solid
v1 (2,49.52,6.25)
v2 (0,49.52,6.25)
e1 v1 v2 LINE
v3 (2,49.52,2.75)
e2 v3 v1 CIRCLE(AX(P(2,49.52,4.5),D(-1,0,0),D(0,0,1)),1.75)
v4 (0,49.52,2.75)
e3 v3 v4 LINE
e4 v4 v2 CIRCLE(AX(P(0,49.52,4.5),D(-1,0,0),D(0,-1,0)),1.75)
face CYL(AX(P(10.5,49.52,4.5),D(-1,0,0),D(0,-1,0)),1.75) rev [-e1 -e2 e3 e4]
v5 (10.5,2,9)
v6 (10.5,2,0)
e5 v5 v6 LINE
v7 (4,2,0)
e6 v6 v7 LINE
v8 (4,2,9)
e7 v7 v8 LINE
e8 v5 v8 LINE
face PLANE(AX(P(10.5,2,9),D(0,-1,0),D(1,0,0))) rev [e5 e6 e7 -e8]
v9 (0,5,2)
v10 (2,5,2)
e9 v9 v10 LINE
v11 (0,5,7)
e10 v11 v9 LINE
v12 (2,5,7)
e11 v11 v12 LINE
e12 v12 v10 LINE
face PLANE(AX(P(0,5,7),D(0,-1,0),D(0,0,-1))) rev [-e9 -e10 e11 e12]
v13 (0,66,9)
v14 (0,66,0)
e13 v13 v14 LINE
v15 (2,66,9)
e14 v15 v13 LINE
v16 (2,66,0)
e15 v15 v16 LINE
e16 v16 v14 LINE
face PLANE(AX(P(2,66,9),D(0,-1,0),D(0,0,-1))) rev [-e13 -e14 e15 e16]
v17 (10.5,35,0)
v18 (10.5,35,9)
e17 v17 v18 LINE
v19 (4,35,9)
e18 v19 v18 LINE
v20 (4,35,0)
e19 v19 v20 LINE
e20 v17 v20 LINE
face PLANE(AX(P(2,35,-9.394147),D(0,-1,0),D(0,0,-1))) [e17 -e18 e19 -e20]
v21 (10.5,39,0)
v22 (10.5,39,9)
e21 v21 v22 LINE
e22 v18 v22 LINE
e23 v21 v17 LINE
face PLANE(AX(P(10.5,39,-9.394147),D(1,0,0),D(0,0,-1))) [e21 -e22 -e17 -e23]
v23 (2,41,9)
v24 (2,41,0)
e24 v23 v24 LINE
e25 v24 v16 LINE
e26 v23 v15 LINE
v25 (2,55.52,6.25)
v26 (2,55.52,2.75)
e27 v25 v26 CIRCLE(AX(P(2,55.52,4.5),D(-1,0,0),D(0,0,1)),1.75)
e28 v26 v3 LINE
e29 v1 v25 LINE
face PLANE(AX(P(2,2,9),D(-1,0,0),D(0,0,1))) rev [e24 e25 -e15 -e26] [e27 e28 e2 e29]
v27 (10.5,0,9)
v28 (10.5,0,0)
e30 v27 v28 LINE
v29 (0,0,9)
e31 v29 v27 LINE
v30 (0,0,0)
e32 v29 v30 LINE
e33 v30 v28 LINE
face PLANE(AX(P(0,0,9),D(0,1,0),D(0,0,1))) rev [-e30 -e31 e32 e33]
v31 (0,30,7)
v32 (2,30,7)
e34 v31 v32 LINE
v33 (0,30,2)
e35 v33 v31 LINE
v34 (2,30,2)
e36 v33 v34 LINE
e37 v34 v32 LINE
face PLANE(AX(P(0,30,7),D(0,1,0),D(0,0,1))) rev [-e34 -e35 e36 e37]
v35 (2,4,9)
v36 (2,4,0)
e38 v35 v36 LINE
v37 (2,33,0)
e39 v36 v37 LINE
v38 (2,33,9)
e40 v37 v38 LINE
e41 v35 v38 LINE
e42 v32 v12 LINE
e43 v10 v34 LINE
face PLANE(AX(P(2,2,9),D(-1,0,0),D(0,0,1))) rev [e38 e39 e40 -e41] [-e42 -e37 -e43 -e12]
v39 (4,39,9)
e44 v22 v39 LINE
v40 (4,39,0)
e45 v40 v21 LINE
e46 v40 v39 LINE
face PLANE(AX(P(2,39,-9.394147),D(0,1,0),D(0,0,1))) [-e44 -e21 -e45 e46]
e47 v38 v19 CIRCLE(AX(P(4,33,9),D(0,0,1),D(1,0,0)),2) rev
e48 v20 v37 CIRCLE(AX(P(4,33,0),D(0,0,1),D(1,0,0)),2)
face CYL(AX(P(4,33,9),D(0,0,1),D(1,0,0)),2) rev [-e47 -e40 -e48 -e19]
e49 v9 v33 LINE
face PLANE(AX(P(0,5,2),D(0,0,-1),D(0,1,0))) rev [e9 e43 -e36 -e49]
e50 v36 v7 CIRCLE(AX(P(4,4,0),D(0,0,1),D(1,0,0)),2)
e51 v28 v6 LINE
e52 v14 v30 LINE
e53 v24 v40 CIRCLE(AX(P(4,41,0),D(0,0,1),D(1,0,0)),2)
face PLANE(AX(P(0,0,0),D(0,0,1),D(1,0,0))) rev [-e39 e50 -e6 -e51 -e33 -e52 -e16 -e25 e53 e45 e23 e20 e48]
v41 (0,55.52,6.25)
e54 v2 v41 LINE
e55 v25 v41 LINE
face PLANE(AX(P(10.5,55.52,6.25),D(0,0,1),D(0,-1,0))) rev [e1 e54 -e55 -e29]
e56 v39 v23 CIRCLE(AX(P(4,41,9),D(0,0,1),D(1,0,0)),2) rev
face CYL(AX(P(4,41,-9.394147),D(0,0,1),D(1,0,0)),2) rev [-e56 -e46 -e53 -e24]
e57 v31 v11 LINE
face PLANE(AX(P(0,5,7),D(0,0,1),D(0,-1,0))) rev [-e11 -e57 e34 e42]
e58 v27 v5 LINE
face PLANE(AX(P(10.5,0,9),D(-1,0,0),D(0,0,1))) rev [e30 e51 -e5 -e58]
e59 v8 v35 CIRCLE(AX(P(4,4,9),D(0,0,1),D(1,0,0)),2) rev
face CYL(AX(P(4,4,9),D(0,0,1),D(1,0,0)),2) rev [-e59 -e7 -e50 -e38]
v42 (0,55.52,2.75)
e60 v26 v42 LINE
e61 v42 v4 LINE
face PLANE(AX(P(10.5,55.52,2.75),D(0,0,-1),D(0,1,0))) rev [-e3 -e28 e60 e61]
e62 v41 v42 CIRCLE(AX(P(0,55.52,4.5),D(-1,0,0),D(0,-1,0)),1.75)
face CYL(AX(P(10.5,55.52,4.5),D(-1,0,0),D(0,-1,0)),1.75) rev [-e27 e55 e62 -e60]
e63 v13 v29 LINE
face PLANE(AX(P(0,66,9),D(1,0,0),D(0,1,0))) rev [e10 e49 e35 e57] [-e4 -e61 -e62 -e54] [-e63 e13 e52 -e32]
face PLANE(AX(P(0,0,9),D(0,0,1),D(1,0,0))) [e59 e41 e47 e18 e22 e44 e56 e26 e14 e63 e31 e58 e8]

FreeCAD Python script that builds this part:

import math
import FreeCAD as App
import Part
import Sketcher

V = App.Vector
Q = App.Units.Quantity


def edges_at(feature, points):
    """Names of the edges that pass closest to the given points."""
    edges = feature.Shape.Edges
    near = lambda p: min(range(len(edges)), key=lambda i: edges[i].distToShape(Part.Vertex(*p))[0])
    return sorted({f"Edge{near(p) + 1}" for p in points})

doc = App.newDocument("Part")
body = doc.addObject("PartDesign::Body", "Body")

sketch1 = body.newObject("Sketcher::SketchObject", "Sketch")
sketch1.AttachmentSupport = (doc.getObject("XY_Plane"), [""])
sketch1.MapMode = "FlatFace"
sketch1.addGeometry([
    Part.LineSegment(V(0, 0, 0), V(10.5, 0, 0)),
    Part.LineSegment(V(10.5, 0, 0), V(10.5, 2, 0)),
    Part.LineSegment(V(10.5, 2, 0), V(2, 2, 0)),
    Part.LineSegment(V(2, 2, 0), V(2, 66, 0)),
    Part.LineSegment(V(2, 66, 0), V(0, 66, 0)),
    Part.LineSegment(V(0, 66, 0), V(0, 0, 0)),
], False)
sketch1.addConstraint([
    Sketcher.Constraint("Coincident", 0, 2, 1, 1),
    Sketcher.Constraint("Coincident", 1, 2, 2, 1),
    Sketcher.Constraint("Coincident", 2, 2, 3, 1),
    Sketcher.Constraint("Coincident", 3, 2, 4, 1),
    Sketcher.Constraint("Coincident", 4, 2, 5, 1),
    Sketcher.Constraint("Coincident", 5, 2, 0, 1),
    Sketcher.Constraint("Horizontal", 0),
    Sketcher.Constraint("Vertical", 1),
    Sketcher.Constraint("Horizontal", 2),
    Sketcher.Constraint("Vertical", 3),
    Sketcher.Constraint("Horizontal", 4),
    Sketcher.Constraint("Vertical", 5),
    Sketcher.Constraint("Coincident", 5, 2, -1, 1),
    Sketcher.Constraint("Equal", 4, 1),
    Sketcher.Constraint("DistanceX", 4, 2, 4, 1, Q("2 mm")),
    Sketcher.Constraint("DistanceY", 3, 1, 3, 2, Q("64 mm")),
    Sketcher.Constraint("DistanceX", 0, 1, 0, 2, Q("10.5 mm")),
])
pad1 = body.newObject("PartDesign::Pad", "Pad")
pad1.Profile = sketch1
pad1.Length = 9

sketch2 = body.newObject("Sketcher::SketchObject", "Sketch001")
sketch2.AttachmentSupport = (doc.getObject("YZ_Plane"), [""])
sketch2.MapMode = "FlatFace"
sketch2.addGeometry([
    Part.LineSegment(V(49.5, 6.2, 0), V(55.5, 6.2, 0)),
    Part.ArcOfCircle(Part.Circle(V(55.5, 4.5, 0), V(0, 0, 1), 1.8), math.radians(-90), math.radians(90)),
    Part.LineSegment(V(55.5, 2.8, 0), V(49.5, 2.8, 0)),
    Part.ArcOfCircle(Part.Circle(V(49.5, 4.5, 0), V(0, 0, 1), 1.8), math.radians(90), math.radians(270)),
], False)
sketch2.addConstraint([
    Sketcher.Constraint("Tangent", 0, 2, 1, 2),
    Sketcher.Constraint("Tangent", 1, 1, 2, 1),
    Sketcher.Constraint("Tangent", 2, 2, 3, 2),
    Sketcher.Constraint("Tangent", 3, 1, 0, 1),
    Sketcher.Constraint("Horizontal", 0),
    Sketcher.Constraint("Horizontal", 2),
    Sketcher.Constraint("DistanceX", 0, 1, 0, 2, Q("6 mm")),
    Sketcher.Constraint("Radius", 1, Q("1.75 mm")),
    Sketcher.Constraint("DistanceY", -1, 1, 1, 3, Q("4.5 mm")),
    Sketcher.Constraint("DistanceX", -1, 1, 1, 3, Q("55.52 mm")),
])
pocket1 = body.newObject("PartDesign::Pocket", "Pocket")
pocket1.Profile = sketch2
pocket1.Type = "ThroughAll"
pocket1.Reversed = True

sketch3 = body.newObject("Sketcher::SketchObject", "Sketch002")
sketch3.AttachmentSupport = (doc.getObject("YZ_Plane"), [""])
sketch3.MapMode = "FlatFace"
sketch3.AttachmentOffset = App.Placement(V(0, 0, 2), App.Rotation())
sketch3.addGeometry([
    Part.LineSegment(V(30, 7, 0), V(5, 7, 0)),
    Part.LineSegment(V(5, 7, 0), V(5, 2, 0)),
    Part.LineSegment(V(5, 2, 0), V(30, 2, 0)),
    Part.LineSegment(V(30, 2, 0), V(30, 7, 0)),
], False)
sketch3.addConstraint([
    Sketcher.Constraint("Coincident", 0, 2, 1, 1),
    Sketcher.Constraint("Coincident", 1, 2, 2, 1),
    Sketcher.Constraint("Coincident", 2, 2, 3, 1),
    Sketcher.Constraint("Coincident", 3, 2, 0, 1),
    Sketcher.Constraint("Horizontal", 0),
    Sketcher.Constraint("Vertical", 1),
    Sketcher.Constraint("Horizontal", 2),
    Sketcher.Constraint("Vertical", 3),
    Sketcher.Constraint("DistanceX", 0, 2, 0, 1, Q("25 mm")),
    Sketcher.Constraint("DistanceY", 1, 2, 1, 1, Q("5 mm")),
    Sketcher.Constraint("DistanceX", -1, 1, 0, 2, Q("5 mm")),
    Sketcher.Constraint("DistanceY", -1, 1, 0, 2, Q("7 mm")),
])
pocket2 = body.newObject("PartDesign::Pocket", "Pocket001")
pocket2.Profile = sketch3
pocket2.Type = "ThroughAll"
doc.recompute()

fillet = body.newObject("PartDesign::Fillet", "Fillet")
fillet.Base = (pocket2, edges_at(pocket2, [(2, 2, 4.5)]))
fillet.Radius = 2

sketch4 = body.newObject("Sketcher::SketchObject", "Sketch003")
sketch4.AttachmentSupport = (doc.getObject("XY_Plane"), [""])
sketch4.MapMode = "FlatFace"
sketch4.AttachmentOffset = App.Placement(V(0, 0, 9), App.Rotation())
sketch4.addGeometry([
    Part.LineSegment(V(2, 39, 0), V(2, 35, 0)),
    Part.LineSegment(V(2, 35, 0), V(10.5, 35, 0)),
    Part.LineSegment(V(10.5, 35, 0), V(10.5, 39, 0)),
    Part.LineSegment(V(10.5, 39, 0), V(2, 39, 0)),
], False)
sketch4.addConstraint([
    Sketcher.Constraint("Coincident", 0, 2, 1, 1),
    Sketcher.Constraint("Coincident", 1, 2, 2, 1),
    Sketcher.Constraint("Coincident", 2, 2, 3, 1),
    Sketcher.Constraint("Coincident", 3, 2, 0, 1),
    Sketcher.Constraint("Vertical", 0),
    Sketcher.Constraint("Horizontal", 1),
    Sketcher.Constraint("Vertical", 2),
    Sketcher.Constraint("Horizontal", 3),
    Sketcher.Constraint("DistanceY", 0, 2, 0, 1, Q("4 mm")),
    Sketcher.Constraint("DistanceX", 1, 1, 1, 2, Q("8.5 mm")),
    Sketcher.Constraint("DistanceX", -1, 1, 0, 2, Q("2 mm")),
    Sketcher.Constraint("DistanceY", -1, 1, 0, 2, Q("35 mm")),
])
pad2 = body.newObject("PartDesign::Pad", "Pad001")
pad2.Profile = sketch4
pad2.Length = 9
pad2.Reversed = True
doc.recompute()

fillet2 = body.newObject("PartDesign::Fillet", "Fillet001")
fillet2.Base = (pad2, edges_at(pad2, [(2, 39, 4.5), (2, 35, 4.5)]))
fillet2.Radius = 2

doc.recompute()
